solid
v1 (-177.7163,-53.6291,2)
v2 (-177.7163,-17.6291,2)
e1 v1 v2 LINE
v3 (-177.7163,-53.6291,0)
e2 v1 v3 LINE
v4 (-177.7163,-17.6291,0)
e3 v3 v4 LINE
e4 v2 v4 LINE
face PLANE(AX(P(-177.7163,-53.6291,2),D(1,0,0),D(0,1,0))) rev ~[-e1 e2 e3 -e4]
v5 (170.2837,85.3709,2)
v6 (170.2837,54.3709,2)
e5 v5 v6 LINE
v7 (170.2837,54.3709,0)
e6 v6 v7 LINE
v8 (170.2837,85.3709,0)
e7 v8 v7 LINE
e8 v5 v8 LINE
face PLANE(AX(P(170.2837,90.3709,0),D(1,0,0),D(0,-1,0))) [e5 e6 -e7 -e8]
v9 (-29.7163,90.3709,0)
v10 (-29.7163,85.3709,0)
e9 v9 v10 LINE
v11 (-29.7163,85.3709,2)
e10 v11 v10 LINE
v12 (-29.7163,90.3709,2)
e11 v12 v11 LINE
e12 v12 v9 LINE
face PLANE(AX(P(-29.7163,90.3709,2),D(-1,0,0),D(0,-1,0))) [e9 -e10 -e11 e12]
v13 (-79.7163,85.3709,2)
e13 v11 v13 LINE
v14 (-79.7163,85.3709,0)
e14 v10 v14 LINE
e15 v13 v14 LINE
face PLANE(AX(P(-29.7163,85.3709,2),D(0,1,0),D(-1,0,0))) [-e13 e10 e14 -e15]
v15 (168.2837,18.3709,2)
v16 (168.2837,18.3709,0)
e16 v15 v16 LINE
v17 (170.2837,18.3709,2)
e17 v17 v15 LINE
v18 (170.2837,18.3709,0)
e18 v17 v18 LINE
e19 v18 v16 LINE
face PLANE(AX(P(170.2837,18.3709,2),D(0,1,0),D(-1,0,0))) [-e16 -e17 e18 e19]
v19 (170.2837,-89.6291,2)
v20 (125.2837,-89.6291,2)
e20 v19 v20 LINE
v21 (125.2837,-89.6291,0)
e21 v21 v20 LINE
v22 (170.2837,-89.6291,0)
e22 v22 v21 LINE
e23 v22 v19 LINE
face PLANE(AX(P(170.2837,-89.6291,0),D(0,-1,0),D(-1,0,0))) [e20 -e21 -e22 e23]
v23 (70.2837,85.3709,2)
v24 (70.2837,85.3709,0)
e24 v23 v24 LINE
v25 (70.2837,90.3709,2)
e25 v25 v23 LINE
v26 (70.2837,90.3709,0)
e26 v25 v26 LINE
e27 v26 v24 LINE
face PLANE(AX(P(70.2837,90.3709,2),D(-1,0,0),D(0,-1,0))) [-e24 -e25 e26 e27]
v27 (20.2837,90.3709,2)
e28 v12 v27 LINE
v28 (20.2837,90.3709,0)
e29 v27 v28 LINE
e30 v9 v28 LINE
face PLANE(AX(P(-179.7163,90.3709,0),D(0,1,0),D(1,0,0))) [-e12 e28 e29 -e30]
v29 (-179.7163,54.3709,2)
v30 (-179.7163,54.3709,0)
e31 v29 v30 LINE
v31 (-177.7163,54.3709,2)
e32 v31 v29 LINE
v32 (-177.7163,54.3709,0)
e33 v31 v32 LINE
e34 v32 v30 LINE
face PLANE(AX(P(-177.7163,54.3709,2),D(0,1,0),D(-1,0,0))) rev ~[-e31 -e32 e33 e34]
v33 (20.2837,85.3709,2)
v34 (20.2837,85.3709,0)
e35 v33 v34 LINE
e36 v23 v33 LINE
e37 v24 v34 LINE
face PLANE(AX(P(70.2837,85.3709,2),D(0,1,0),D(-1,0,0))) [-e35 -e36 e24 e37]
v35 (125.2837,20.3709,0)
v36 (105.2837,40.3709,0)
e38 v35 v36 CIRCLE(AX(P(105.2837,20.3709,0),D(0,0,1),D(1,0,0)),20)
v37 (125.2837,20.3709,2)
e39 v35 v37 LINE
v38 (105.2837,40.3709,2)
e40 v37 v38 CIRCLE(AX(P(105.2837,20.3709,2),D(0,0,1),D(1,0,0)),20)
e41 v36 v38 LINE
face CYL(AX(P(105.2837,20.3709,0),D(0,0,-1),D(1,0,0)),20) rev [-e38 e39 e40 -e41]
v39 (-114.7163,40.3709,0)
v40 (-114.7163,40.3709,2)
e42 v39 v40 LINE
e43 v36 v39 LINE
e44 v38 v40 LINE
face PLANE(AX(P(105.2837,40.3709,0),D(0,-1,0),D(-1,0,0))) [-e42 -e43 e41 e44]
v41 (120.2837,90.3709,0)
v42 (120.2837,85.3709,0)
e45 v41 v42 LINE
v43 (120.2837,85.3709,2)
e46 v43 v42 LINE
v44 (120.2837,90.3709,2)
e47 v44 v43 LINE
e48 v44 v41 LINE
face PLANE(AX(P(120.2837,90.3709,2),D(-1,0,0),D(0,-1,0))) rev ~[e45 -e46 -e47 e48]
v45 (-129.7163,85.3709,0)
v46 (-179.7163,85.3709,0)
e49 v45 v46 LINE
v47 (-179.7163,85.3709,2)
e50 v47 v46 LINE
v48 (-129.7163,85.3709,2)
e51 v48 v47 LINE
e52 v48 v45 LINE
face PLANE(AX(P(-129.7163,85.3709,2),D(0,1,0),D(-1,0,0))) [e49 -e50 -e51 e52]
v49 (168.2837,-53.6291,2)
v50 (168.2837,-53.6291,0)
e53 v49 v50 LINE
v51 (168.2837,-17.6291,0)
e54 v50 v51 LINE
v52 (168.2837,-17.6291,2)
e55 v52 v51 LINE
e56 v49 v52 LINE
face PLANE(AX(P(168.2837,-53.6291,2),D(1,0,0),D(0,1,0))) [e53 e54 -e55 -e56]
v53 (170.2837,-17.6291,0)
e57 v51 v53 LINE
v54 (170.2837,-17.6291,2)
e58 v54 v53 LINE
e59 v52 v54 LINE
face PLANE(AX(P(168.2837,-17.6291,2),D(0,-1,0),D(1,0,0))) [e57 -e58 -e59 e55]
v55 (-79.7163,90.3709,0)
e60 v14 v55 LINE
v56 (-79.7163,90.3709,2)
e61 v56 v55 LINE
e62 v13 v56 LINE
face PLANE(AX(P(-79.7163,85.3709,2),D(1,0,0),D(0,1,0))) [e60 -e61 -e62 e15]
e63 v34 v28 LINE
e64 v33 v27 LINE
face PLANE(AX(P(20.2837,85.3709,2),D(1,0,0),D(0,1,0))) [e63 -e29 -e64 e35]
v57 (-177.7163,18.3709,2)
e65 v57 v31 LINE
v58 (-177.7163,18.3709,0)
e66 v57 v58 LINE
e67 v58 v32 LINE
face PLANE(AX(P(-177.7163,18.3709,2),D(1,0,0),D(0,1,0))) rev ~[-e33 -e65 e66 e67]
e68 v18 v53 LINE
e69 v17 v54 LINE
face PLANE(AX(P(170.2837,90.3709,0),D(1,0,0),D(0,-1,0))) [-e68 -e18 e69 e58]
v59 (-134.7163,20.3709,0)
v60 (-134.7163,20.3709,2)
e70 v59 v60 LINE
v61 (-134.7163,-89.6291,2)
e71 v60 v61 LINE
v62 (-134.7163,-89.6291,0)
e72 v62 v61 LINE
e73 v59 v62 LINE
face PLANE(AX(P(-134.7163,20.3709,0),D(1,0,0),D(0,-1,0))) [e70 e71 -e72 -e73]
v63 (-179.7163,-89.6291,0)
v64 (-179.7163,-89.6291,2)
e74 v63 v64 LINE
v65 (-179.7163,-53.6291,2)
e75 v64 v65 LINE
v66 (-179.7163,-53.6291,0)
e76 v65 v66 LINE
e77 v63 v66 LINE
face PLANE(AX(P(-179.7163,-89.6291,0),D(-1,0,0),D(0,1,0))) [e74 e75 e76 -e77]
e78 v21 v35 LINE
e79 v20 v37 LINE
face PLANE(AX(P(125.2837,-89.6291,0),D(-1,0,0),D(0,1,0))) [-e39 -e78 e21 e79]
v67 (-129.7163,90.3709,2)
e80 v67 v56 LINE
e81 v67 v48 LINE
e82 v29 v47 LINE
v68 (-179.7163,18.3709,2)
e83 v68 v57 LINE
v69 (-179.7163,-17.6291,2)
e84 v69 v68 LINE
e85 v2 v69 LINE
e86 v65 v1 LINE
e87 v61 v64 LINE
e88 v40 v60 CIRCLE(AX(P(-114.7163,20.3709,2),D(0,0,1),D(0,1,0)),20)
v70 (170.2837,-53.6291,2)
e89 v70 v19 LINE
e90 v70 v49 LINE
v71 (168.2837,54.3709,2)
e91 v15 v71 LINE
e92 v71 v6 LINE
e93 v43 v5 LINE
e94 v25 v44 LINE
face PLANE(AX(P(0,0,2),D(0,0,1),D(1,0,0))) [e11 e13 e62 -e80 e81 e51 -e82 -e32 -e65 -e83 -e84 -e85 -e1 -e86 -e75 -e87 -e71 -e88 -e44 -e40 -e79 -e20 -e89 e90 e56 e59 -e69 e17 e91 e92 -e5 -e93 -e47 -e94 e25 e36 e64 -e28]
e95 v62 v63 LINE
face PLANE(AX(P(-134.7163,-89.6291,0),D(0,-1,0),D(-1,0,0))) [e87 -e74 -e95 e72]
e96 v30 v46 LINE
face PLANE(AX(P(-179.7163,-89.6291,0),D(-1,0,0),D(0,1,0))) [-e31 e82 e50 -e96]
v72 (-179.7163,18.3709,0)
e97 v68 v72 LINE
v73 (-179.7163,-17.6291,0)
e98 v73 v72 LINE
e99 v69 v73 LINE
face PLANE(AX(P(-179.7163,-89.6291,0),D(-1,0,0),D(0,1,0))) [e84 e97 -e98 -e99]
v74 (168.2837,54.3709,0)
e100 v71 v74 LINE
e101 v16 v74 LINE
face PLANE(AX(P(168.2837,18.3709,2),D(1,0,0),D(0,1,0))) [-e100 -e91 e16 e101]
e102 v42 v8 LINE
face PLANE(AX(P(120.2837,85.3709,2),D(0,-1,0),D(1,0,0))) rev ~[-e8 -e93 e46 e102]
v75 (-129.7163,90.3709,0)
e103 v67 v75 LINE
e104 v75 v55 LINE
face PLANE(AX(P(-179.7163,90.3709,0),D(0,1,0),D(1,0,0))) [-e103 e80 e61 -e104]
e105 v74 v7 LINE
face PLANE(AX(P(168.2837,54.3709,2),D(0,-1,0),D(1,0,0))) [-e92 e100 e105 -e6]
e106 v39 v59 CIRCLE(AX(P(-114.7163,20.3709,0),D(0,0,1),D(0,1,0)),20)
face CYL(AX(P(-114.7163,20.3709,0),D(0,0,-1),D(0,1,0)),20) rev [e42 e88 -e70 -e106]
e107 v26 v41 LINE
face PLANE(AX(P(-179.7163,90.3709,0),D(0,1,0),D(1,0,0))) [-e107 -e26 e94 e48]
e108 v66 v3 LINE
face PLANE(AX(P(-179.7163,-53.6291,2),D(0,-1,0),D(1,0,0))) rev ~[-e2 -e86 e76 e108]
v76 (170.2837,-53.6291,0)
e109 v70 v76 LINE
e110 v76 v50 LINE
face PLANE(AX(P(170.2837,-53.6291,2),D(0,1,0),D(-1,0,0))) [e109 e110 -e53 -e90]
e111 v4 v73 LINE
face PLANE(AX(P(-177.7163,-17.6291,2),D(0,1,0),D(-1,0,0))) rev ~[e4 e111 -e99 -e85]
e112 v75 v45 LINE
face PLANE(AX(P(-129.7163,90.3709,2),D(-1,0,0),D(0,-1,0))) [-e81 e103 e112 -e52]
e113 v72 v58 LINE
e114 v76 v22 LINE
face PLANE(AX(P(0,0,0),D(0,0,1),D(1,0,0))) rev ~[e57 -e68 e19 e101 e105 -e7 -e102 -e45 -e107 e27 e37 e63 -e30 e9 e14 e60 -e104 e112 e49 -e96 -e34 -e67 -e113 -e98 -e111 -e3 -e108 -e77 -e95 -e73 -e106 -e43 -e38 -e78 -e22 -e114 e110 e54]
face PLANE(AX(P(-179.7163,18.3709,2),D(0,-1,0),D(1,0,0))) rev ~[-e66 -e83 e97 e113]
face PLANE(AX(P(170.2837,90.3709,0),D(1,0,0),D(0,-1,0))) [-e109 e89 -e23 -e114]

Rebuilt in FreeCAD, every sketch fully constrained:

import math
import FreeCAD as App
import Part
import Sketcher
Q = App.Units.Quantity

doc = App.newDocument("Part")
body = doc.addObject("PartDesign::Body", "Body")

# Sketch on XY plane
sketch1 = body.newObject("Sketcher::SketchObject", "Sketch")
sketch1.AttachmentSupport = (doc.getObject("XY_Plane"), [""])
sketch1.MapMode = "FlatFace"
sketch1.addGeometry(Part.LineSegment(App.Vector(170, 90, 0), App.Vector(-180, 90, 0)), False)
sketch1.addGeometry(Part.LineSegment(App.Vector(-180, 90, 0), App.Vector(-180, -90, 0)), False)
sketch1.addGeometry(Part.LineSegment(App.Vector(-180, -90, 0), App.Vector(-135, -90, 0)), False)
sketch1.addGeometry(Part.LineSegment(App.Vector(-135, -90, 0), App.Vector(-135, 20, 0)), False)
sketch1.addGeometry(Part.ArcOfCircle(Part.Circle(App.Vector(-115, 20, 0), App.Vector(0, 0, 1), 20), math.radians(90), math.radians(180)), False)
sketch1.addGeometry(Part.LineSegment(App.Vector(-115, 40, 0), App.Vector(105, 40, 0)), False)
sketch1.addGeometry(Part.ArcOfCircle(Part.Circle(App.Vector(105, 20, 0), App.Vector(0, 0, 1), 20), math.radians(0), math.radians(90)), False)
sketch1.addGeometry(Part.LineSegment(App.Vector(125, 20, 0), App.Vector(125, -90, 0)), False)
sketch1.addGeometry(Part.LineSegment(App.Vector(125, -90, 0), App.Vector(170, -90, 0)), False)
sketch1.addGeometry(Part.LineSegment(App.Vector(170, -90, 0), App.Vector(170, 90, 0)), False)
sketch1.addConstraint(Sketcher.Constraint("Coincident", 0, 2, 1, 1))
sketch1.addConstraint(Sketcher.Constraint("Coincident", 1, 2, 2, 1))
sketch1.addConstraint(Sketcher.Constraint("Coincident", 2, 2, 3, 1))
sketch1.addConstraint(Sketcher.Constraint("Tangent", 3, 2, 4, 2))
sketch1.addConstraint(Sketcher.Constraint("Tangent", 4, 1, 5, 1))
sketch1.addConstraint(Sketcher.Constraint("Tangent", 5, 2, 6, 2))
sketch1.addConstraint(Sketcher.Constraint("Tangent", 6, 1, 7, 1))
sketch1.addConstraint(Sketcher.Constraint("Coincident", 7, 2, 8, 1))
sketch1.addConstraint(Sketcher.Constraint("Coincident", 8, 2, 9, 1))
sketch1.addConstraint(Sketcher.Constraint("Coincident", 9, 2, 0, 1))
sketch1.addConstraint(Sketcher.Constraint("Horizontal", 0))
sketch1.addConstraint(Sketcher.Constraint("Vertical", 1))
sketch1.addConstraint(Sketcher.Constraint("Horizontal", 2))
sketch1.addConstraint(Sketcher.Constraint("Vertical", 3))
sketch1.addConstraint(Sketcher.Constraint("Horizontal", 5))
sketch1.addConstraint(Sketcher.Constraint("Vertical", 7))
sketch1.addConstraint(Sketcher.Constraint("Horizontal", 8))
sketch1.addConstraint(Sketcher.Constraint("Vertical", 9))
sketch1.addConstraint(Sketcher.Constraint("Equal", 4, 6))
sketch1.addConstraint(Sketcher.Constraint("Horizontal", 2, 2, 7, 2))
sketch1.addConstraint(Sketcher.Constraint("Equal", 2, 8))
sketch1.addConstraint(Sketcher.Constraint("Radius", 4, Q("20 mm")))
sketch1.addConstraint(Sketcher.Constraint("DistanceX", 0, 2, 0, 1, Q("350 mm")))
sketch1.addConstraint(Sketcher.Constraint("DistanceX", 2, 1, 2, 2, Q("45 mm")))
sketch1.addConstraint(Sketcher.Constraint("DistanceY", 1, 2, 1, 1, Q("180 mm")))
sketch1.addConstraint(Sketcher.Constraint("DistanceY", 4, 1, 0, 2, Q("50 mm")))
sketch1.addConstraint(Sketcher.Constraint("DistanceY", -1, 1, 4, 3, Q("20.371 mm")))
sketch1.addConstraint(Sketcher.Constraint("DistanceX", 4, 3, -1, 1, Q("114.7163 mm")))
pad1 = body.newObject("PartDesign::Pad", "Pad")
pad1.Profile = sketch1
pad1.Length = 2

# Sketch on XY plane
sketch2 = body.newObject("Sketcher::SketchObject", "Sketch001")
sketch2.AttachmentSupport = (doc.getObject("XY_Plane"), [""])
sketch2.MapMode = "FlatFace"
sketch2.AttachmentOffset = App.Placement(App.Vector(0, 0, 2), App.Rotation())
sketch2.addGeometry(Part.LineSegment(App.Vector(170, 85, 0), App.Vector(170, 90, 0)), False)
sketch2.addGeometry(Part.LineSegment(App.Vector(170, 90, 0), App.Vector(120, 90, 0)), False)
sketch2.addGeometry(Part.LineSegment(App.Vector(120, 90, 0), App.Vector(120, 85, 0)), False)
sketch2.addGeometry(Part.LineSegment(App.Vector(120, 85, 0), App.Vector(170, 85, 0)), False)
sketch2.addGeometry(Part.LineSegment(App.Vector(-130, 85, 0), App.Vector(-130, 90, 0)), False)
sketch2.addGeometry(Part.LineSegment(App.Vector(-130, 90, 0), App.Vector(-180, 90, 0)), False)
sketch2.addGeometry(Part.LineSegment(App.Vector(-180, 90, 0), App.Vector(-180, 85, 0)), False)
sketch2.addGeometry(Part.LineSegment(App.Vector(-180, 85, 0), App.Vector(-130, 85, 0)), False)
sketch2.addGeometry(Part.LineSegment(App.Vector(-30, 85, 0), App.Vector(-30, 90, 0)), False)
sketch2.addGeometry(Part.LineSegment(App.Vector(-30, 90, 0), App.Vector(-80, 90, 0)), False)
sketch2.addGeometry(Part.LineSegment(App.Vector(-80, 90, 0), App.Vector(-80, 85, 0)), False)
sketch2.addGeometry(Part.LineSegment(App.Vector(-80, 85, 0), App.Vector(-30, 85, 0)), False)
sketch2.addGeometry(Part.LineSegment(App.Vector(70, 85, 0), App.Vector(70, 90, 0)), False)
sketch2.addGeometry(Part.LineSegment(App.Vector(70, 90, 0), App.Vector(20, 90, 0)), False)
sketch2.addGeometry(Part.LineSegment(App.Vector(20, 90, 0), App.Vector(20, 85, 0)), False)
sketch2.addGeometry(Part.LineSegment(App.Vector(20, 85, 0), App.Vector(70, 85, 0)), False)
sketch2.addConstraint(Sketcher.Constraint("Coincident", 0, 2, 1, 1))
sketch2.addConstraint(Sketcher.Constraint("Coincident", 1, 2, 2, 1))
sketch2.addConstraint(Sketcher.Constraint("Coincident", 2, 2, 3, 1))
sketch2.addConstraint(Sketcher.Constraint("Coincident", 3, 2, 0, 1))
sketch2.addConstraint(Sketcher.Constraint("Coincident", 4, 2, 5, 1))
sketch2.addConstraint(Sketcher.Constraint("Coincident", 5, 2, 6, 1))
sketch2.addConstraint(Sketcher.Constraint("Coincident", 6, 2, 7, 1))
sketch2.addConstraint(Sketcher.Constraint("Coincident", 7, 2, 4, 1))
sketch2.addConstraint(Sketcher.Constraint("Coincident", 8, 2, 9, 1))
sketch2.addConstraint(Sketcher.Constraint("Coincident", 9, 2, 10, 1))
sketch2.addConstraint(Sketcher.Constraint("Coincident", 10, 2, 11, 1))
sketch2.addConstraint(Sketcher.Constraint("Coincident", 11, 2, 8, 1))
sketch2.addConstraint(Sketcher.Constraint("Coincident", 12, 2, 13, 1))
sketch2.addConstraint(Sketcher.Constraint("Coincident", 13, 2, 14, 1))
sketch2.addConstraint(Sketcher.Constraint("Coincident", 14, 2, 15, 1))
sketch2.addConstraint(Sketcher.Constraint("Coincident", 15, 2, 12, 1))
sketch2.addConstraint(Sketcher.Constraint("Vertical", 0))
sketch2.addConstraint(Sketcher.Constraint("Horizontal", 1))
sketch2.addConstraint(Sketcher.Constraint("Vertical", 2))
sketch2.addConstraint(Sketcher.Constraint("Horizontal", 3))
sketch2.addConstraint(Sketcher.Constraint("Vertical", 4))
sketch2.addConstraint(Sketcher.Constraint("Horizontal", 5))
sketch2.addConstraint(Sketcher.Constraint("Vertical", 6))
sketch2.addConstraint(Sketcher.Constraint("Horizontal", 7))
sketch2.addConstraint(Sketcher.Constraint("Vertical", 8))
sketch2.addConstraint(Sketcher.Constraint("Horizontal", 9))
sketch2.addConstraint(Sketcher.Constraint("Vertical", 10))
sketch2.addConstraint(Sketcher.Constraint("Horizontal", 11))
sketch2.addConstraint(Sketcher.Constraint("Vertical", 12))
sketch2.addConstraint(Sketcher.Constraint("Horizontal", 13))
sketch2.addConstraint(Sketcher.Constraint("Vertical", 14))
sketch2.addConstraint(Sketcher.Constraint("Horizontal", 15))
sketch2.addConstraint(Sketcher.Constraint("Horizontal", 1, 2, 4, 2))
sketch2.addConstraint(Sketcher.Constraint("Horizontal", 3, 2, 6, 2))
sketch2.addConstraint(Sketcher.Constraint("Horizontal", 5, 2, 8, 2))
sketch2.addConstraint(Sketcher.Constraint("Horizontal", 7, 2, 10, 2))
sketch2.addConstraint(Sketcher.Constraint("Horizontal", 9, 2, 12, 2))
sketch2.addConstraint(Sketcher.Constraint("Horizontal", 11, 2, 14, 2))
sketch2.addConstraint(Sketcher.Constraint("Equal", 3, 5))
sketch2.addConstraint(Sketcher.Constraint("Equal", 7, 9))
sketch2.addConstraint(Sketcher.Constraint("Equal", 11, 13))
sketch2.addConstraint(Sketcher.Constraint("DistanceX", 1, 2, 1, 1, Q("50 mm")))
sketch2.addConstraint(Sketcher.Constraint("DistanceY", 0, 1, 0, 2, Q("5 mm")))
sketch2.addConstraint(Sketcher.Constraint("DistanceX", 4, 2, 9, 2, Q("50 mm")))
sketch2.addConstraint(Sketcher.Constraint("DistanceX", 12, 2, 1, 2, Q("50 mm")))
sketch2.addConstraint(Sketcher.Constraint("DistanceX", 8, 2, 13, 2, Q("50 mm")))
sketch2.addConstraint(Sketcher.Constraint("DistanceY", -1, 1, 0, 2, Q("90.371 mm")))
sketch2.addConstraint(Sketcher.Constraint("DistanceX", -1, 1, 0, 2, Q("170.2837 mm")))
pocket1 = body.newObject("PartDesign::Pocket", "Pocket")
pocket1.Profile = sketch2
pocket1.Length = 2

# Sketch on XY plane
sketch3 = body.newObject("Sketcher::SketchObject", "Sketch002")
sketch3.AttachmentSupport = (doc.getObject("XY_Plane"), [""])
sketch3.MapMode = "FlatFace"
sketch3.AttachmentOffset = App.Placement(App.Vector(0, 0, 2), App.Rotation())
sketch3.addGeometry(Part.LineSegment(App.Vector(-177.7, 54.4, 0), App.Vector(-179.7, 54.4, 0)), False)
sketch3.addGeometry(Part.LineSegment(App.Vector(-179.7, 54.4, 0), App.Vector(-179.7, 18.4, 0)), False)
sketch3.addGeometry(Part.LineSegment(App.Vector(-179.7, 18.4, 0), App.Vector(-177.7, 18.4, 0)), False)
sketch3.addGeometry(Part.LineSegment(App.Vector(-177.7, 18.4, 0), App.Vector(-177.7, 54.4, 0)), False)
sketch3.addGeometry(Part.LineSegment(App.Vector(-177.7, -17.6, 0), App.Vector(-179.7, -17.6, 0)), False)
sketch3.addGeometry(Part.LineSegment(App.Vector(-179.7, -17.6, 0), App.Vector(-179.7, -53.6, 0)), False)
sketch3.addGeometry(Part.LineSegment(App.Vector(-179.7, -53.6, 0), App.Vector(-177.7, -53.6, 0)), False)
sketch3.addGeometry(Part.LineSegment(App.Vector(-177.7, -53.6, 0), App.Vector(-177.7, -17.6, 0)), False)
sketch3.addGeometry(Part.LineSegment(App.Vector(168.3, -53.6, 0), App.Vector(170.3, -53.6, 0)), False)
sketch3.addGeometry(Part.LineSegment(App.Vector(170.3, -53.6, 0), App.Vector(170.3, -17.6, 0)), False)
sketch3.addGeometry(Part.LineSegment(App.Vector(170.3, -17.6, 0), App.Vector(168.3, -17.6, 0)), False)
sketch3.addGeometry(Part.LineSegment(App.Vector(168.3, -17.6, 0), App.Vector(168.3, -53.6, 0)), False)
sketch3.addGeometry(Part.LineSegment(App.Vector(168.3, 18.4, 0), App.Vector(170.3, 18.4, 0)), False)
sketch3.addGeometry(Part.LineSegment(App.Vector(170.3, 18.4, 0), App.Vector(170.3, 54.4, 0)), False)
sketch3.addGeometry(Part.LineSegment(App.Vector(170.3, 54.4, 0), App.Vector(168.3, 54.4, 0)), False)
sketch3.addGeometry(Part.LineSegment(App.Vector(168.3, 54.4, 0), App.Vector(168.3, 18.4, 0)), False)
sketch3.addConstraint(Sketcher.Constraint("Coincident", 0, 2, 1, 1))
sketch3.addConstraint(Sketcher.Constraint("Coincident", 1, 2, 2, 1))
sketch3.addConstraint(Sketcher.Constraint("Coincident", 2, 2, 3, 1))
sketch3.addConstraint(Sketcher.Constraint("Coincident", 3, 2, 0, 1))
sketch3.addConstraint(Sketcher.Constraint("Coincident", 4, 2, 5, 1))
sketch3.addConstraint(Sketcher.Constraint("Coincident", 5, 2, 6, 1))
sketch3.addConstraint(Sketcher.Constraint("Coincident", 6, 2, 7, 1))
sketch3.addConstraint(Sketcher.Constraint("Coincident", 7, 2, 4, 1))
sketch3.addConstraint(Sketcher.Constraint("Coincident", 8, 2, 9, 1))
sketch3.addConstraint(Sketcher.Constraint("Coincident", 9, 2, 10, 1))
sketch3.addConstraint(Sketcher.Constraint("Coincident", 10, 2, 11, 1))
sketch3.addConstraint(Sketcher.Constraint("Coincident", 11, 2, 8, 1))
sketch3.addConstraint(Sketcher.Constraint("Coincident", 12, 2, 13, 1))
sketch3.addConstraint(Sketcher.Constraint("Coincident", 13, 2, 14, 1))
sketch3.addConstraint(Sketcher.Constraint("Coincident", 14, 2, 15, 1))
sketch3.addConstraint(Sketcher.Constraint("Coincident", 15, 2, 12, 1))
sketch3.addConstraint(Sketcher.Constraint("Horizontal", 0))
sketch3.addConstraint(Sketcher.Constraint("Vertical", 1))
sketch3.addConstraint(Sketcher.Constraint("Horizontal", 2))
sketch3.addConstraint(Sketcher.Constraint("Vertical", 3))
sketch3.addConstraint(Sketcher.Constraint("Horizontal", 4))
sketch3.addConstraint(Sketcher.Constraint("Vertical", 5))
sketch3.addConstraint(Sketcher.Constraint("Horizontal", 6))
sketch3.addConstraint(Sketcher.Constraint("Vertical", 7))
sketch3.addConstraint(Sketcher.Constraint("Horizontal", 8))
sketch3.addConstraint(Sketcher.Constraint("Vertical", 9))
sketch3.addConstraint(Sketcher.Constraint("Horizontal", 10))
sketch3.addConstraint(Sketcher.Constraint("Vertical", 11))
sketch3.addConstraint(Sketcher.Constraint("Horizontal", 12))
sketch3.addConstraint(Sketcher.Constraint("Vertical", 13))
sketch3.addConstraint(Sketcher.Constraint("Horizontal", 14))
sketch3.addConstraint(Sketcher.Constraint("Vertical", 15))
sketch3.addConstraint(Sketcher.Constraint("Horizontal", 6, 2, 8, 2))
sketch3.addConstraint(Sketcher.Constraint("Horizontal", 7, 2, 9, 2))
sketch3.addConstraint(Sketcher.Constraint("Horizontal", 2, 2, 12, 2))
sketch3.addConstraint(Sketcher.Constraint("Horizontal", 3, 2, 13, 2))
sketch3.addConstraint(Sketcher.Constraint("Vertical", 1, 2, 4, 2))
sketch3.addConstraint(Sketcher.Constraint("Vertical", 3, 2, 6, 2))
sketch3.addConstraint(Sketcher.Constraint("Vertical", 9, 2, 12, 2))
sketch3.addConstraint(Sketcher.Constraint("Vertical", 11, 2, 14, 2))
sketch3.addConstraint(Sketcher.Constraint("Equal", 6, 8))
sketch3.addConstraint(Sketcher.Constraint("Equal", 3, 5))
sketch3.addConstraint(Sketcher.Constraint("DistanceX", 0, 2, 0, 1, Q("2 mm")))
sketch3.addConstraint(Sketcher.Constraint("DistanceY", 1, 2, 1, 1, Q("36 mm")))
sketch3.addConstraint(Sketcher.Constraint("DistanceY", 4, 2, 1, 2, Q("36 mm")))
sketch3.addConstraint(Sketcher.Constraint("DistanceX", 6, 2, 8, 2, Q("348 mm")))
sketch3.addConstraint(Sketcher.Constraint("DistanceY", -1, 1, 0, 2, Q("54.371 mm")))
sketch3.addConstraint(Sketcher.Constraint("DistanceX", 0, 2, -1, 1, Q("179.7163 mm")))
pocket2 = body.newObject("PartDesign::Pocket", "Pocket001")
pocket2.Profile = sketch3
pocket2.Length = 2

doc.recompute()
